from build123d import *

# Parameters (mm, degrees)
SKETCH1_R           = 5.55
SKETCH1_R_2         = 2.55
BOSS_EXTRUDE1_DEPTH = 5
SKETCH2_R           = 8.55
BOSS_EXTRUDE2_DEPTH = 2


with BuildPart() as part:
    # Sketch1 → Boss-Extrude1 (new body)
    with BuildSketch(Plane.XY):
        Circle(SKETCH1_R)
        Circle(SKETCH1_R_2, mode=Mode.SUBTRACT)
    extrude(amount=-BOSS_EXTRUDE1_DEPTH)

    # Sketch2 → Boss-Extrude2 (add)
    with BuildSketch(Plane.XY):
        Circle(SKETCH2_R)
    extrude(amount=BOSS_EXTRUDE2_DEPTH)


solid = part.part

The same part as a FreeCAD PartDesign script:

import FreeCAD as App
import Part
import Sketcher

V = App.Vector
Q = App.Units.Quantity

doc = App.newDocument("Part")
body = doc.addObject("PartDesign::Body", "Body")

sketch1 = body.newObject("Sketcher::SketchObject", "Sketch")
sketch1.AttachmentSupport = (doc.getObject("XY_Plane"), [""])
sketch1.MapMode = "FlatFace"
sketch1.addGeometry([
    Part.Circle(V(0, 0, 0), V(0, 0, 1), 5.5),
    Part.Circle(V(0, 0, 0), V(0, 0, 1), 2.5),
], False)
sketch1.addConstraint([
    Sketcher.Constraint("Coincident", 0, 3, -1, 1),
    Sketcher.Constraint("Coincident", 1, 3, -1, 1),
    Sketcher.Constraint("Diameter", 0, Q("11.1 mm")),
    Sketcher.Constraint("Diameter", 1, Q("5.1 mm")),
])
pad1 = body.newObject("PartDesign::Pad", "Pad")
pad1.Profile = sketch1
pad1.Length = 5
pad1.Reversed = True

sketch2 = body.newObject("Sketcher::SketchObject", "Sketch001")
sketch2.AttachmentSupport = (doc.getObject("XY_Plane"), [""])
sketch2.MapMode = "FlatFace"
sketch2.addGeometry(Part.Circle(V(0, 0, 0), V(0, 0, 1), 9), False)
sketch2.addConstraint([
    Sketcher.Constraint("Coincident", 0, 3, -1, 1),
    Sketcher.Constraint("Diameter", 0, Q("17.1 mm")),
])
pad2 = body.newObject("PartDesign::Pad", "Pad001")
pad2.Profile = sketch2
pad2.Length = 2

doc.recompute()
